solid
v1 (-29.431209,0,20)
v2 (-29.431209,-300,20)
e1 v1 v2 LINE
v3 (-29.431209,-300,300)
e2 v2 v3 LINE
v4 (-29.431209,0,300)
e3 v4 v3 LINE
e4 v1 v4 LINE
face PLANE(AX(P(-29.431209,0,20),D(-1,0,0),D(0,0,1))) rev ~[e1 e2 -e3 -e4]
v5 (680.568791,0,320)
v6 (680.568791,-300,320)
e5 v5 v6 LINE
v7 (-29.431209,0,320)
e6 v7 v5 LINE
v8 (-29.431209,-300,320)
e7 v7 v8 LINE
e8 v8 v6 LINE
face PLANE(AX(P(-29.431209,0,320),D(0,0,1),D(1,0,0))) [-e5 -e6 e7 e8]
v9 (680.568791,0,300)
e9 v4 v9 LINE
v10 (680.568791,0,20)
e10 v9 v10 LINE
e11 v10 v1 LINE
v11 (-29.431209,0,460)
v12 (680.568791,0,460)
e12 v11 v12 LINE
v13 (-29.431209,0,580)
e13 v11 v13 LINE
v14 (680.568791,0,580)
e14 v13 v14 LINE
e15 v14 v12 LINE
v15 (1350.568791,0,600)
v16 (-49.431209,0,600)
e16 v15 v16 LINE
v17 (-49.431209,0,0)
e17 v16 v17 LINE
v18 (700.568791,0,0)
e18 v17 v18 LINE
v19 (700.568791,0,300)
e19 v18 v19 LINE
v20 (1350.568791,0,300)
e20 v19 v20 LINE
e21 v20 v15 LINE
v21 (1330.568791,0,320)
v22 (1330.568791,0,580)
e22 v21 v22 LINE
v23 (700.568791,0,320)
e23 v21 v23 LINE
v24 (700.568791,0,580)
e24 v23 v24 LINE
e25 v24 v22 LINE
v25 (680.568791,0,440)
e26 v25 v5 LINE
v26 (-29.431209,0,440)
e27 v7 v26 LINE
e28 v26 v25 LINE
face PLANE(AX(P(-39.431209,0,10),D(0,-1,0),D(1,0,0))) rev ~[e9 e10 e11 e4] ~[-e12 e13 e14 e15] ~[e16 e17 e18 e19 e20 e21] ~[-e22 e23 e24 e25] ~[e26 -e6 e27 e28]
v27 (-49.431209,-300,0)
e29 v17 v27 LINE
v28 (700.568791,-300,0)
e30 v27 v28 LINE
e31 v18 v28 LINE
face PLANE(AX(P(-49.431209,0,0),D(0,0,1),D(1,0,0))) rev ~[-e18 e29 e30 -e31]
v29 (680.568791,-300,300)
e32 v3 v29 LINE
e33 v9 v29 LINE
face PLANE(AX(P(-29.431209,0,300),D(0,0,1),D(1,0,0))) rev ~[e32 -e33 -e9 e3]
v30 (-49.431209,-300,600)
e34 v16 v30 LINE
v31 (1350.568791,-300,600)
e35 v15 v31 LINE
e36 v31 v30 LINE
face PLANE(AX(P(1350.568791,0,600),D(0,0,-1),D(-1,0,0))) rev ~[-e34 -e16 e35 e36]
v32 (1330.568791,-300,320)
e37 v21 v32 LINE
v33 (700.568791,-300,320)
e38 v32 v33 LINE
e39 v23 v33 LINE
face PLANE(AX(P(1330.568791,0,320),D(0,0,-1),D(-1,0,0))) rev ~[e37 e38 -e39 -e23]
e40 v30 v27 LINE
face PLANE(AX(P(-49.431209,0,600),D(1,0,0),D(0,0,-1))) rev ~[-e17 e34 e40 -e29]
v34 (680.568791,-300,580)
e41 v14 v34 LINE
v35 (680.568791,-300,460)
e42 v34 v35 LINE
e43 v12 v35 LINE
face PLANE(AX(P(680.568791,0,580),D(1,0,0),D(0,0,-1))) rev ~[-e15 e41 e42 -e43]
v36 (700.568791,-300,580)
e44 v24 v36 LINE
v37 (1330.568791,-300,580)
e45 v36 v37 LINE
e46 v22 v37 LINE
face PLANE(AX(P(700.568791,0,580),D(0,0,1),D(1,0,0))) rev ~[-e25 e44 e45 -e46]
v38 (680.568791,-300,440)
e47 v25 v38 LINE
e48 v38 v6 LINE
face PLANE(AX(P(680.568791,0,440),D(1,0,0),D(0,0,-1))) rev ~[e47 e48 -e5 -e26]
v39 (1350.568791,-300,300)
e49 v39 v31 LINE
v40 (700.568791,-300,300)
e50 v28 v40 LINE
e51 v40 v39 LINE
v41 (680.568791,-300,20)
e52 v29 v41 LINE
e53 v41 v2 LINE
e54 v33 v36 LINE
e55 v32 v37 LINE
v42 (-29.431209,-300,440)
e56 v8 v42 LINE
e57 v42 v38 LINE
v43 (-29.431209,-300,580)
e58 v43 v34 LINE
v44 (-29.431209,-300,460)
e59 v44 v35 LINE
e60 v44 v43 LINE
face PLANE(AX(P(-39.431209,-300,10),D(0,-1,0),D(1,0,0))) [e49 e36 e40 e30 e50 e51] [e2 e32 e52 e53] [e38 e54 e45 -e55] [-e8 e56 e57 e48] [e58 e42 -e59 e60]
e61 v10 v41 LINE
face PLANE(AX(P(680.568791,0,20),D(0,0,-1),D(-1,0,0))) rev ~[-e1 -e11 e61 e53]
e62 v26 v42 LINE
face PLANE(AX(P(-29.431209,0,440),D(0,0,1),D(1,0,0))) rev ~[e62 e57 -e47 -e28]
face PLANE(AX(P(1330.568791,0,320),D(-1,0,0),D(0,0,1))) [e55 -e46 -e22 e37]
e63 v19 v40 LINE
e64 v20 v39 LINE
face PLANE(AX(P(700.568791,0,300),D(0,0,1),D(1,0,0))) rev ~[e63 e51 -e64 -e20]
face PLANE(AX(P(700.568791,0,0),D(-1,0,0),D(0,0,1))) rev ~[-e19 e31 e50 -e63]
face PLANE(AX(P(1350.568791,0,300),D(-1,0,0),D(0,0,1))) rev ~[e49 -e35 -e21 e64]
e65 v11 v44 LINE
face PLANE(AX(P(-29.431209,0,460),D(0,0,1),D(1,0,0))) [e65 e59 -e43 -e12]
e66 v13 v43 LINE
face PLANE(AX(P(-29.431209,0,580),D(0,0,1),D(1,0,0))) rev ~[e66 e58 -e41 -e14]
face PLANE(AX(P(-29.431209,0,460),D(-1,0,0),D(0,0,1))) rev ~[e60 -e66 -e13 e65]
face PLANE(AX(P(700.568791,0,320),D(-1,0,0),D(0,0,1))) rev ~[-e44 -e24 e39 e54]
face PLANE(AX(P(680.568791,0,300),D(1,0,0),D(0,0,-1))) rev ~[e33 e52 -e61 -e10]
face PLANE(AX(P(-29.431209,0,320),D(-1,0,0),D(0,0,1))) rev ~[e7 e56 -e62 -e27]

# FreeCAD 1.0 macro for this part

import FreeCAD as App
import Part
import Sketcher
from FreeCAD import Vector

doc = App.newDocument("Part")
body = doc.addObject("PartDesign::Body", "Body")

# Sketch on XZ plane
sketch1 = body.newObject("Sketcher::SketchObject", "Sketch")
sketch1.AttachmentSupport = (doc.getObject("XZ_Plane"), [""])
sketch1.MapMode = "FlatFace"
sketch1.addGeometry([
    Part.LineSegment(Vector(-49, 0, 0), Vector(701, 0, 0)),  # 0
    Part.LineSegment(Vector(701, 0, 0), Vector(701, 300, 0)),  # 1
    Part.LineSegment(Vector(701, 300, 0), Vector(1351, 300, 0)),  # 2
    Part.LineSegment(Vector(1351, 300, 0), Vector(1351, 600, 0)),  # 3
    Part.LineSegment(Vector(1351, 600, 0), Vector(-49, 600, 0)),  # 4
    Part.LineSegment(Vector(-49, 600, 0), Vector(-49, 0, 0)),  # 5
    Part.LineSegment(Vector(1331, 320, 0), Vector(701, 320, 0)),  # 6
    Part.LineSegment(Vector(701, 320, 0), Vector(701, 580, 0)),  # 7
    Part.LineSegment(Vector(701, 580, 0), Vector(1331, 580, 0)),  # 8
    Part.LineSegment(Vector(1331, 580, 0), Vector(1331, 320, 0)),  # 9
    Part.LineSegment(Vector(681, 20, 0), Vector(-29, 20, 0)),  # 10
    Part.LineSegment(Vector(-29, 20, 0), Vector(-29, 300, 0)),  # 11
    Part.LineSegment(Vector(-29, 300, 0), Vector(681, 300, 0)),  # 12
    Part.LineSegment(Vector(681, 300, 0), Vector(681, 20, 0)),  # 13
    Part.LineSegment(Vector(-29, 320, 0), Vector(-29, 440, 0)),  # 14
    Part.LineSegment(Vector(-29, 440, 0), Vector(681, 440, 0)),  # 15
    Part.LineSegment(Vector(681, 440, 0), Vector(681, 320, 0)),  # 16
    Part.LineSegment(Vector(681, 320, 0), Vector(-29, 320, 0)),  # 17
    Part.LineSegment(Vector(681, 460, 0), Vector(-29, 460, 0)),  # 18
    Part.LineSegment(Vector(-29, 460, 0), Vector(-29, 580, 0)),  # 19
    Part.LineSegment(Vector(-29, 580, 0), Vector(681, 580, 0)),  # 20
    Part.LineSegment(Vector(681, 580, 0), Vector(681, 460, 0)),  # 21
], False)
sketch1.addConstraint([
    Sketcher.Constraint("Coincident", 0, 2, 1, 1),
    Sketcher.Constraint("Coincident", 1, 2, 2, 1),
    Sketcher.Constraint("Coincident", 2, 2, 3, 1),
    Sketcher.Constraint("Coincident", 3, 2, 4, 1),
    Sketcher.Constraint("Coincident", 4, 2, 5, 1),
    Sketcher.Constraint("Coincident", 5, 2, 0, 1),
    Sketcher.Constraint("Coincident", 6, 2, 7, 1),
    Sketcher.Constraint("Coincident", 7, 2, 8, 1),
    Sketcher.Constraint("Coincident", 8, 2, 9, 1),
    Sketcher.Constraint("Coincident", 9, 2, 6, 1),
    Sketcher.Constraint("Coincident", 10, 2, 11, 1),
    Sketcher.Constraint("Coincident", 11, 2, 12, 1),
    Sketcher.Constraint("Coincident", 12, 2, 13, 1),
    Sketcher.Constraint("Coincident", 13, 2, 10, 1),
    Sketcher.Constraint("Coincident", 14, 2, 15, 1),
    Sketcher.Constraint("Coincident", 15, 2, 16, 1),
    Sketcher.Constraint("Coincident", 16, 2, 17, 1),
    Sketcher.Constraint("Coincident", 17, 2, 14, 1),
    Sketcher.Constraint("Coincident", 18, 2, 19, 1),
    Sketcher.Constraint("Coincident", 19, 2, 20, 1),
    Sketcher.Constraint("Coincident", 20, 2, 21, 1),
    Sketcher.Constraint("Coincident", 21, 2, 18, 1),
    Sketcher.Constraint("Horizontal", 0),
    Sketcher.Constraint("Vertical", 1),
    Sketcher.Constraint("Horizontal", 2),
    Sketcher.Constraint("Vertical", 3),
    Sketcher.Constraint("Horizontal", 4),
    Sketcher.Constraint("Vertical", 5),
    Sketcher.Constraint("Horizontal", 6),
    Sketcher.Constraint("Vertical", 7),
    Sketcher.Constraint("Horizontal", 8),
    Sketcher.Constraint("Vertical", 9),
    Sketcher.Constraint("Horizontal", 10),
    Sketcher.Constraint("Vertical", 11),
    Sketcher.Constraint("Horizontal", 12),
    Sketcher.Constraint("Vertical", 13),
    Sketcher.Constraint("Vertical", 14),
    Sketcher.Constraint("Horizontal", 15),
    Sketcher.Constraint("Vertical", 16),
    Sketcher.Constraint("Horizontal", 17),
    Sketcher.Constraint("Horizontal", 18),
    Sketcher.Constraint("Vertical", 19),
    Sketcher.Constraint("Horizontal", 20),
    Sketcher.Constraint("Vertical", 21),
    Sketcher.Constraint("PointOnObject", 0, 2, -1),
    Sketcher.Constraint("Horizontal", 2, 2, 11, 2),
    Sketcher.Constraint("Horizontal", 9, 2, 16, 2),
    Sketcher.Constraint("Horizontal", 8, 2, 19, 2),
    Sketcher.Constraint("Vertical", 1, 2, 6, 2),
    Sketcher.Constraint("Vertical", 11, 2, 14, 2),
    Sketcher.Constraint("Vertical", 13, 2, 15, 2),
    Sketcher.Constraint("Vertical", 17, 2, 18, 2),
    Sketcher.Constraint("Vertical", 16, 2, 20, 2),
    Sketcher.Constraint("Equal", 1, 3),
    Sketcher.Constraint("Equal", 16, 19),
    Sketcher.Constraint("DistanceX", 0, 1, 0, 2, 750.0),
    Sketcher.Constraint("DistanceX", 2, 1, 2, 2, 650.0),
    Sketcher.Constraint("DistanceX", 6, 2, 6, 1, 630.0),
    Sketcher.Constraint("DistanceX", 10, 2, 10, 1, 710.0),
    Sketcher.Constraint("DistanceY", 1, 1, 1, 2, 300.0),
    Sketcher.Constraint("DistanceY", 7, 1, 7, 2, 260.0),
    Sketcher.Constraint("DistanceY", 11, 1, 11, 2, 280.0),
    Sketcher.Constraint("DistanceY", 14, 1, 14, 2, 120.0),
    Sketcher.Constraint("DistanceY", -1, 1, 6, 2, 320.0),
    Sketcher.Constraint("DistanceX", 5, 2, 10, 2, 20.0),
    Sketcher.Constraint("DistanceX", -1, 1, 0, 2, 700.568791),
])
pad1 = body.newObject("PartDesign::Pad", "Pad")
pad1.Profile = sketch1
pad1.Length = 300

doc.recompute()
